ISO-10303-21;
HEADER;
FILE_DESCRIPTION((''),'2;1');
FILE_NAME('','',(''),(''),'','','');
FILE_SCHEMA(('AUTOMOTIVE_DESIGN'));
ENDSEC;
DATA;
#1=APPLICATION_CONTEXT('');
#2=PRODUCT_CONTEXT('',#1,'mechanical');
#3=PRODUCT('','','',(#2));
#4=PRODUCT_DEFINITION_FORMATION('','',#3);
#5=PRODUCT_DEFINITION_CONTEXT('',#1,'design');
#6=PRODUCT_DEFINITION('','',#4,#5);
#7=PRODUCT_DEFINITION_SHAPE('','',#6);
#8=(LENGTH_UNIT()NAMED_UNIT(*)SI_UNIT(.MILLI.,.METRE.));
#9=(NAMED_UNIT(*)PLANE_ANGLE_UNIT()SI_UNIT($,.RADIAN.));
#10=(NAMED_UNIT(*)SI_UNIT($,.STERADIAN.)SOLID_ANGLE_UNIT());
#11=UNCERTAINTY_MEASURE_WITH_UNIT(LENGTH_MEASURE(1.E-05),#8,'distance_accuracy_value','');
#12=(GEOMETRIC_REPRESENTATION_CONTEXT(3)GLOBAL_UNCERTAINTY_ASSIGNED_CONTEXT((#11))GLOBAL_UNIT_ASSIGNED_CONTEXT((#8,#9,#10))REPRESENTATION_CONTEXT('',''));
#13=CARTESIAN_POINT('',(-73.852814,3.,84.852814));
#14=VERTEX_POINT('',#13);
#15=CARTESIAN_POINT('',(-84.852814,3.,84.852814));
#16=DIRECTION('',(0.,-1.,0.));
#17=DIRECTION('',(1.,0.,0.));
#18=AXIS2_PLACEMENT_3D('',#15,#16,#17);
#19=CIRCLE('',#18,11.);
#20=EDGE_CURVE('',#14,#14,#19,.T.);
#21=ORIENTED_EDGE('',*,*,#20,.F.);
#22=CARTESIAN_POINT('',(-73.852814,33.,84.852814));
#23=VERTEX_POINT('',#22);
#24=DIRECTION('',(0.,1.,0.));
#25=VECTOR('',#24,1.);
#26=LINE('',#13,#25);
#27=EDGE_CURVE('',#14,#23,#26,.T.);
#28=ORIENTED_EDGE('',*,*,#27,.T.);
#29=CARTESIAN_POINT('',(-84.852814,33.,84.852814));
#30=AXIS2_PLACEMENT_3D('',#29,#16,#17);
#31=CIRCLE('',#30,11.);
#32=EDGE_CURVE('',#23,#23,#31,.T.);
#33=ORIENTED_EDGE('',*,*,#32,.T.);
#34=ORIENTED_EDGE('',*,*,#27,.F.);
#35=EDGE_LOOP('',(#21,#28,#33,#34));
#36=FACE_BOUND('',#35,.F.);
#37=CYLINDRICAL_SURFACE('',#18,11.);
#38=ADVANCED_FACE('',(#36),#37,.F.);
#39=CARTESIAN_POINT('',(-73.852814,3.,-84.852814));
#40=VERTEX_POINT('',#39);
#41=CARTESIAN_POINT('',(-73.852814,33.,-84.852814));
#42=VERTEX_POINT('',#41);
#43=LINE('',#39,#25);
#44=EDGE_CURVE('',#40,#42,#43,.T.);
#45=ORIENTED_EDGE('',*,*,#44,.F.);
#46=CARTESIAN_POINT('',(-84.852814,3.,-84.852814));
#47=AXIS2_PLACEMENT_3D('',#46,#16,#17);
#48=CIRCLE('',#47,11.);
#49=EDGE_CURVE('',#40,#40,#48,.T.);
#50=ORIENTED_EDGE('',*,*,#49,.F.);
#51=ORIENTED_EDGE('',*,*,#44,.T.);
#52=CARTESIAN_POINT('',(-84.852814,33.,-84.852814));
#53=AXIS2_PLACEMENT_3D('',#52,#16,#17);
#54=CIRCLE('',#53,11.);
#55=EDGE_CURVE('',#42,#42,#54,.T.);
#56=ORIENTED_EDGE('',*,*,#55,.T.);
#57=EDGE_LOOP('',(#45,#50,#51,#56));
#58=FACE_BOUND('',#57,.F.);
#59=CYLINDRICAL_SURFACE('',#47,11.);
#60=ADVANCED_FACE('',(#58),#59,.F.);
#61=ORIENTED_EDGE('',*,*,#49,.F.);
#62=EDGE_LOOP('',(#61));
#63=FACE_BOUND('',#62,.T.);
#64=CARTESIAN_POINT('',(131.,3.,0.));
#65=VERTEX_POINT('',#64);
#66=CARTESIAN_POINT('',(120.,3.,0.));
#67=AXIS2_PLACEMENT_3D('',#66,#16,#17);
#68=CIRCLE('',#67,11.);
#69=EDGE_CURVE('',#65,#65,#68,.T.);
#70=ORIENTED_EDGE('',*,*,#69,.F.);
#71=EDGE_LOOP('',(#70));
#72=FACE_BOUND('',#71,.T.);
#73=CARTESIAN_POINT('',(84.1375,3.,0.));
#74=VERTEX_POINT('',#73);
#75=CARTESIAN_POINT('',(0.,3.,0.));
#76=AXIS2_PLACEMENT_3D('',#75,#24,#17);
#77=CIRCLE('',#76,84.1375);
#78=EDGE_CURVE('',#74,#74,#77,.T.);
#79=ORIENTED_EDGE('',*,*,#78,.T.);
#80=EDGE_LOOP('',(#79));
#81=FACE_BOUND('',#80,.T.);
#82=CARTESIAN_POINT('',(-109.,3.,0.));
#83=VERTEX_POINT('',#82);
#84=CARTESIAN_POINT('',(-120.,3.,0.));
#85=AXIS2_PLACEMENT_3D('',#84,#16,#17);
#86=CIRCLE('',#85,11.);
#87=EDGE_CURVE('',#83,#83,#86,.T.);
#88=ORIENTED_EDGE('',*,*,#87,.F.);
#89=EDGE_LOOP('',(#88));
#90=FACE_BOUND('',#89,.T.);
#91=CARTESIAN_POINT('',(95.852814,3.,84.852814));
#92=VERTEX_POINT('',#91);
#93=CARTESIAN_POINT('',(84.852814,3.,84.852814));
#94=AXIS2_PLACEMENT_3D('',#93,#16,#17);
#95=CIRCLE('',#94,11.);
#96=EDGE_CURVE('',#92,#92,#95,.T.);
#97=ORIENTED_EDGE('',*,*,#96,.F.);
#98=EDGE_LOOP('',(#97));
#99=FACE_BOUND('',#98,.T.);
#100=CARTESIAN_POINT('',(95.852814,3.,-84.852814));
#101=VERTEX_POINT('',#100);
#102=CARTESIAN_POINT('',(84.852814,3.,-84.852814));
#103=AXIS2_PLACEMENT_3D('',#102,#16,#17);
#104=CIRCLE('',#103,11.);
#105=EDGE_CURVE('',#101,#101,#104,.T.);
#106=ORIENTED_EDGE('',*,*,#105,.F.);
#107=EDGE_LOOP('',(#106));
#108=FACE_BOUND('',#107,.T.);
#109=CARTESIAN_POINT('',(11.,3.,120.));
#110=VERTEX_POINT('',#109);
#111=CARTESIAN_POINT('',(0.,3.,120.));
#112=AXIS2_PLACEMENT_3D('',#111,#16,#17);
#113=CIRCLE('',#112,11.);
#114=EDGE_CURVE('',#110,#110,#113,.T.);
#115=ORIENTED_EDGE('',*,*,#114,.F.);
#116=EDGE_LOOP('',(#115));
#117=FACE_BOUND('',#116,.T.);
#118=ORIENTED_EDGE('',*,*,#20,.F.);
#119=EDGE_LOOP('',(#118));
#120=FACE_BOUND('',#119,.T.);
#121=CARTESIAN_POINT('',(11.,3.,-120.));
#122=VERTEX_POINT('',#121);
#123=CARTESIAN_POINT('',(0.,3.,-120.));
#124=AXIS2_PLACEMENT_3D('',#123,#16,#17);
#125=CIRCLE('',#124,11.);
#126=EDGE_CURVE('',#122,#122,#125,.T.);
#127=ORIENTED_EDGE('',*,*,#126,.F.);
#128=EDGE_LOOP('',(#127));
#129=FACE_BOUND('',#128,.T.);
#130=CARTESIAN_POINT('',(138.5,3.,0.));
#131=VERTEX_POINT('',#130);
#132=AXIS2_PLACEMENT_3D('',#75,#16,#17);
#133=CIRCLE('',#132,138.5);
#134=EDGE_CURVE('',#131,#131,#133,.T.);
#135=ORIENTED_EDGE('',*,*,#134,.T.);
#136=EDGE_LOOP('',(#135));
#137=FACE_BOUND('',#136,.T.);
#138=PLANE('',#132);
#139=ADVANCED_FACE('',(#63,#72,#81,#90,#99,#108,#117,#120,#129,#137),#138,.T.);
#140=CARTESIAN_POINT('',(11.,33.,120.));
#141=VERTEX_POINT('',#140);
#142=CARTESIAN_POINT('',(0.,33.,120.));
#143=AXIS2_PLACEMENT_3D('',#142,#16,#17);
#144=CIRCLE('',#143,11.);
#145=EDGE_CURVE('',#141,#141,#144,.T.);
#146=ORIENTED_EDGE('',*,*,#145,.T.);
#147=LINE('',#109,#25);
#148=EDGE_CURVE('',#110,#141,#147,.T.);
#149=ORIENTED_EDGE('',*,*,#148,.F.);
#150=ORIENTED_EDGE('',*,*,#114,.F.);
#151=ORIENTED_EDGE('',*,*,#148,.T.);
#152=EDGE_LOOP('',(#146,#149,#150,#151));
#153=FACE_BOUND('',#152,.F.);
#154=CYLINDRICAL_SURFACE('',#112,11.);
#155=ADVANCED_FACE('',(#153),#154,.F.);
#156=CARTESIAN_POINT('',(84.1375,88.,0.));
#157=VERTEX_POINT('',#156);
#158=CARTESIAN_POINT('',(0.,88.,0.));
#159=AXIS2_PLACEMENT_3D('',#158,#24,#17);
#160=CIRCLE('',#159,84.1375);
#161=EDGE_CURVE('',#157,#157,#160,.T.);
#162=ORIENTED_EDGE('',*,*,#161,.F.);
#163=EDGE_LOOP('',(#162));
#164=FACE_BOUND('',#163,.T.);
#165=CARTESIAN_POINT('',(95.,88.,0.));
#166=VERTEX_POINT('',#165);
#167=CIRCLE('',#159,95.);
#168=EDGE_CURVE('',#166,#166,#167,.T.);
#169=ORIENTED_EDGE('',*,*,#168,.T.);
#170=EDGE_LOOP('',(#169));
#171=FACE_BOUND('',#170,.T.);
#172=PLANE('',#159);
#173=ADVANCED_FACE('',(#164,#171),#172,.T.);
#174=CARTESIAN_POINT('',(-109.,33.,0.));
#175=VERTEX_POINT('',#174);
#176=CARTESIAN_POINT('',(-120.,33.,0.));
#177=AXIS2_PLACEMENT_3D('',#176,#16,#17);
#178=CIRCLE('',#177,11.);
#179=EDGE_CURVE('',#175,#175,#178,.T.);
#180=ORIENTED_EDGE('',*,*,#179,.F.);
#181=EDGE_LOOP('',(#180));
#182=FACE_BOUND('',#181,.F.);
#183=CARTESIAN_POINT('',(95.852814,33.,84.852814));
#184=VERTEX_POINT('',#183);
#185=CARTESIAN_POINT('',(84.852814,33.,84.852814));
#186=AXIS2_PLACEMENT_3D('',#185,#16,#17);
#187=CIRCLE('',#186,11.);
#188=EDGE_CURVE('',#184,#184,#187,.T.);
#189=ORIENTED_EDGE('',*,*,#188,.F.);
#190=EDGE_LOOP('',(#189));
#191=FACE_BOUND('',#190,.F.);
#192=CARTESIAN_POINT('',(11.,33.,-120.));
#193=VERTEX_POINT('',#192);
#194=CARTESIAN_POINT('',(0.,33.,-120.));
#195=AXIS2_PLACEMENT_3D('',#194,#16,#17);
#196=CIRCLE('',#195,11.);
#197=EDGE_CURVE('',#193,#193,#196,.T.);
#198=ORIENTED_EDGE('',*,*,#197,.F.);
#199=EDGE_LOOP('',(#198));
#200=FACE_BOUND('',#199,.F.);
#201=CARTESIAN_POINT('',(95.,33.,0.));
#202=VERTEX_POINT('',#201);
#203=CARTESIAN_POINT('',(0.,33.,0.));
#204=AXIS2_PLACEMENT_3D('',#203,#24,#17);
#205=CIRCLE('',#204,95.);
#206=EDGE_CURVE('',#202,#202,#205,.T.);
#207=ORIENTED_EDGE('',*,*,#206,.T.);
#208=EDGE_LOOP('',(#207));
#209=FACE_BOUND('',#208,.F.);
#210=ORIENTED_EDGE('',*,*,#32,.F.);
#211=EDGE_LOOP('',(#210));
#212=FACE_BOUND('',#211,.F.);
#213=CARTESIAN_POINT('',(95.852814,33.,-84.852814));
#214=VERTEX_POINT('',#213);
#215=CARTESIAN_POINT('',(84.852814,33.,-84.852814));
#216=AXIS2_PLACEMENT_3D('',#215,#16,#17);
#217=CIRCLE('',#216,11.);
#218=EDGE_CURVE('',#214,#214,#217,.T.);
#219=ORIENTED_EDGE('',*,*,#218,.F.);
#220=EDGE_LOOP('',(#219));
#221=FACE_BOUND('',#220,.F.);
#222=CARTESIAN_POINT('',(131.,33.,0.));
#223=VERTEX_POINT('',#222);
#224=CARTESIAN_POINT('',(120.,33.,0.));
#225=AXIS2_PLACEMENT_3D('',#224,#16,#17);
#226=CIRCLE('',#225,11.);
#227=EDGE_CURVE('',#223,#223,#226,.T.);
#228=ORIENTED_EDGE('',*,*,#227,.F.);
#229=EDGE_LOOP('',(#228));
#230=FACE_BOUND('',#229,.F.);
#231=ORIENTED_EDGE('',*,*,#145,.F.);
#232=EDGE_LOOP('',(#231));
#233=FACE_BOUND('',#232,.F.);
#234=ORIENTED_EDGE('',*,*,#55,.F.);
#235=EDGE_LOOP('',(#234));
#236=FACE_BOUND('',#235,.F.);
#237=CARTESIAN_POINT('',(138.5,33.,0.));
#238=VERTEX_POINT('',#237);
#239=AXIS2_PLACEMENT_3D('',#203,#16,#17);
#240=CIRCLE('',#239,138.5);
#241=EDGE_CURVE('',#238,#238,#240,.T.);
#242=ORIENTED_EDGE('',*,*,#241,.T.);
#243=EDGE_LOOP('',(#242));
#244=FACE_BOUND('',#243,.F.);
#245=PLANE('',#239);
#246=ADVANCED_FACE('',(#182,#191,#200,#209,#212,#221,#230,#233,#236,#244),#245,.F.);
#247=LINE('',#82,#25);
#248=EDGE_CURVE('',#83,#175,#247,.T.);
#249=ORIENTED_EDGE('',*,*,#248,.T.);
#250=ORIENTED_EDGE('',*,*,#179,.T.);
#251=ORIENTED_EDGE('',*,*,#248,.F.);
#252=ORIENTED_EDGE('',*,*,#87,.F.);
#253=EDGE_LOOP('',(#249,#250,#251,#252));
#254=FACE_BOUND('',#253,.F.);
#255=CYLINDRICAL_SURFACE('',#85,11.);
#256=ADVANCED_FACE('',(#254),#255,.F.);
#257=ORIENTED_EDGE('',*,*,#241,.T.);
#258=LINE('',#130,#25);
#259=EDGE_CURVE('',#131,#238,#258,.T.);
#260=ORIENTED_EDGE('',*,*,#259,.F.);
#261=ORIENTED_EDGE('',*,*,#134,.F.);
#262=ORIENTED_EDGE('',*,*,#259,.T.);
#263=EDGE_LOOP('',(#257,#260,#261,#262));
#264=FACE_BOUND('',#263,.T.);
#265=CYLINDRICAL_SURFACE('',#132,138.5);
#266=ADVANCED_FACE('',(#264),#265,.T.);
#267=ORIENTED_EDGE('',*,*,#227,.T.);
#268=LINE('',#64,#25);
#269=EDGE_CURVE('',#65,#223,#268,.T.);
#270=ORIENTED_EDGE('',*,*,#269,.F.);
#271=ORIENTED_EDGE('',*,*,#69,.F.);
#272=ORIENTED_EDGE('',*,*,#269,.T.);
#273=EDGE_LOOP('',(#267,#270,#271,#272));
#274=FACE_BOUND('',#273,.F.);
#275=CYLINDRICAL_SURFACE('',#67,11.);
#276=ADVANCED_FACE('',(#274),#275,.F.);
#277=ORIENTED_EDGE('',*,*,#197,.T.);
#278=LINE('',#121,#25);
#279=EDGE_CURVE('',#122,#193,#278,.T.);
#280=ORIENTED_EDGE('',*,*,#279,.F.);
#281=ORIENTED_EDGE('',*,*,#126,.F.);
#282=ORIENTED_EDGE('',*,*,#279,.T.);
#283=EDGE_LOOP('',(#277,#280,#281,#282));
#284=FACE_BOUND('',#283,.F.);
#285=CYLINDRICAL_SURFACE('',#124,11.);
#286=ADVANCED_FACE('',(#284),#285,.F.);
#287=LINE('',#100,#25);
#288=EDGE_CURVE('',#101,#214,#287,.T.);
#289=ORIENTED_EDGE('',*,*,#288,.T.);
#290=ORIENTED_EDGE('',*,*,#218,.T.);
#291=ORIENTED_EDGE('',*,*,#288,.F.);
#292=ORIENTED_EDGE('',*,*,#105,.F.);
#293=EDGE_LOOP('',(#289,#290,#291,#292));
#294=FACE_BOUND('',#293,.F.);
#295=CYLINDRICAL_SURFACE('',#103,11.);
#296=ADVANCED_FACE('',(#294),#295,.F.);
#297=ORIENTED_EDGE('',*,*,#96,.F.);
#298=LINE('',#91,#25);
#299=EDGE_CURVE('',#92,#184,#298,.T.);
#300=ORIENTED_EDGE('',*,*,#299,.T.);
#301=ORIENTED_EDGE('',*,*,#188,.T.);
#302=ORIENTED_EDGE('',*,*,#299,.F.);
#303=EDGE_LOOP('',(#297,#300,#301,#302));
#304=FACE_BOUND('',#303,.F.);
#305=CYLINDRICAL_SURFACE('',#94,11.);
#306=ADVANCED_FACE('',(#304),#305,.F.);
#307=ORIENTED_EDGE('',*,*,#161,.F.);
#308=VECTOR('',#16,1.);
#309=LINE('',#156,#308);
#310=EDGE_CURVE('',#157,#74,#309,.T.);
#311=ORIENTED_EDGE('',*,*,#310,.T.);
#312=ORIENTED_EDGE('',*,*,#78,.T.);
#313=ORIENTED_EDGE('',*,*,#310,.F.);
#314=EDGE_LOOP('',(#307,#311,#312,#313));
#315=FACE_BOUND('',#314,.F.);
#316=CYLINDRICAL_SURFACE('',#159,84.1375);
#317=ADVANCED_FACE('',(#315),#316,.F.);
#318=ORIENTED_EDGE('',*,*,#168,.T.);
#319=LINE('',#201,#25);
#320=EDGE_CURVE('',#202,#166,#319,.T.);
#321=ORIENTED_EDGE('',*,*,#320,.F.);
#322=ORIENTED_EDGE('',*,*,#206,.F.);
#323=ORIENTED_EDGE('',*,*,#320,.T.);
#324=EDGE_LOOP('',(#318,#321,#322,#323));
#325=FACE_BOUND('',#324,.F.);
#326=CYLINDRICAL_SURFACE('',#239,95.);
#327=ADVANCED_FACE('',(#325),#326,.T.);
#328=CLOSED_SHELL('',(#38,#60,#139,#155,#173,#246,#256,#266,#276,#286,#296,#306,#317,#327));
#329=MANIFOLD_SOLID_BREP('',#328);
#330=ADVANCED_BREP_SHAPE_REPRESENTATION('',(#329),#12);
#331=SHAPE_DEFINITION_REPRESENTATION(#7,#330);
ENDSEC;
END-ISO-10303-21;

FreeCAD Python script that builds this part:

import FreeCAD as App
import Part
import Sketcher

V = App.Vector
Q = App.Units.Quantity

doc = App.newDocument("Part")
body = doc.addObject("PartDesign::Body", "Body")

# Sketch on XZ plane
sketch1 = body.newObject("Sketcher::SketchObject", "Sketch")
sketch1.AttachmentSupport = (doc.getObject("XZ_Plane"), [""])
sketch1.MapMode = "FlatFace"
sketch1.AttachmentOffset = App.Placement(V(0, 0, -3), App.Rotation())
sketch1.addGeometry(Part.Circle(V(0, 0, 0), V(0, 0, 1), 138), False)
sketch1.addGeometry(Part.Circle(V(-85, -85, 0), V(0, 0, 1), 11), False)
sketch1.addGeometry(Part.Circle(V(0, -120, 0), V(0, 0, 1), 11), False)
sketch1.addGeometry(Part.Circle(V(85, -85, 0), V(0, 0, 1), 11), False)
sketch1.addGeometry(Part.Circle(V(-120, 0, 0), V(0, 0, 1), 11), False)
sketch1.addGeometry(Part.Circle(V(-85, 85, 0), V(0, 0, 1), 11), False)
sketch1.addGeometry(Part.Circle(V(120, 0, 0), V(0, 0, 1), 11), False)
sketch1.addGeometry(Part.Circle(V(0, 120, 0), V(0, 0, 1), 11), False)
sketch1.addGeometry(Part.Circle(V(85, 85, 0), V(0, 0, 1), 11), False)
sketch1.addConstraint(Sketcher.Constraint("Coincident", 0, 3, -1, 1))
sketch1.addConstraint(Sketcher.Constraint("Equal", 1, 2))
sketch1.addConstraint(Sketcher.Constraint("Equal", 2, 3))
sketch1.addConstraint(Sketcher.Constraint("Equal", 3, 4))
sketch1.addConstraint(Sketcher.Constraint("Equal", 4, 5))
sketch1.addConstraint(Sketcher.Constraint("Equal", 5, 6))
sketch1.addConstraint(Sketcher.Constraint("Equal", 6, 7))
sketch1.addConstraint(Sketcher.Constraint("Equal", 7, 8))
sketch1.addConstraint(Sketcher.Constraint("Symmetric", 3, 3, 5, 3, -1, 1))
sketch1.addConstraint(Sketcher.Constraint("Symmetric", 4, 3, 6, 3, -1, 1))
sketch1.addConstraint(Sketcher.Constraint("Symmetric", 2, 3, 7, 3, -1, 1))
sketch1.addConstraint(Sketcher.Constraint("Symmetric", 1, 3, 8, 3, -1, 1))
sketch1.addConstraint(Sketcher.Constraint("Symmetric", 1, 3, 3, 3, -2))
sketch1.addConstraint(Sketcher.Constraint("PointOnObject", 2, 3, -2))
sketch1.addConstraint(Sketcher.Constraint("PointOnObject", 4, 3, -1))
sketch1.addConstraint(Sketcher.Constraint("Diameter", 0, Q("277 mm")))
sketch1.addConstraint(Sketcher.Constraint("Diameter", 1, Q("22 mm")))
sketch1.addConstraint(Sketcher.Constraint("DistanceY", 2, 3, -1, 1, Q("120 mm")))
sketch1.addConstraint(Sketcher.Constraint("DistanceX", 4, 3, -1, 1, Q("120 mm")))
sketch1.addConstraint(Sketcher.Constraint("DistanceX", 1, 3, -1, 1, Q("84.852814 mm")))
sketch1.addConstraint(Sketcher.Constraint("DistanceY", 1, 3, -1, 1, Q("84.852814 mm")))
pad1 = body.newObject("PartDesign::Pad", "Pad")
pad1.Profile = sketch1
pad1.Length = 30
pad1.Reversed = True

# Sketch on XZ plane
sketch2 = body.newObject("Sketcher::SketchObject", "Sketch001")
sketch2.AttachmentSupport = (doc.getObject("XZ_Plane"), [""])
sketch2.MapMode = "FlatFace"
sketch2.AttachmentOffset = App.Placement(V(0, 0, -33), App.Rotation())
sketch2.addGeometry(Part.Circle(V(0, 0, 0), V(0, 0, 1), 95), False)
sketch2.addConstraint(Sketcher.Constraint("Coincident", 0, 3, -1, 1))
sketch2.addConstraint(Sketcher.Constraint("Diameter", 0, Q("190 mm")))
pad2 = body.newObject("PartDesign::Pad", "Pad001")
pad2.Profile = sketch2
pad2.Length = 55
pad2.Reversed = True

# Sketch on XZ plane
sketch3 = body.newObject("Sketcher::SketchObject", "Sketch002")
sketch3.AttachmentSupport = (doc.getObject("XZ_Plane"), [""])
sketch3.MapMode = "FlatFace"
sketch3.AttachmentOffset = App.Placement(V(0, 0, -88), App.Rotation())
sketch3.addGeometry(Part.Circle(V(0, 0, 0), V(0, 0, 1), 84), False)
sketch3.addConstraint(Sketcher.Constraint("Coincident", 0, 3, -1, 1))
sketch3.addConstraint(Sketcher.Constraint("Diameter", 0, Q("168.275 mm")))
pocket1 = body.newObject("PartDesign::Pocket", "Pocket")
pocket1.Profile = sketch3
pocket1.Type = "ThroughAll"
pocket1.Reversed = True

doc.recompute()
